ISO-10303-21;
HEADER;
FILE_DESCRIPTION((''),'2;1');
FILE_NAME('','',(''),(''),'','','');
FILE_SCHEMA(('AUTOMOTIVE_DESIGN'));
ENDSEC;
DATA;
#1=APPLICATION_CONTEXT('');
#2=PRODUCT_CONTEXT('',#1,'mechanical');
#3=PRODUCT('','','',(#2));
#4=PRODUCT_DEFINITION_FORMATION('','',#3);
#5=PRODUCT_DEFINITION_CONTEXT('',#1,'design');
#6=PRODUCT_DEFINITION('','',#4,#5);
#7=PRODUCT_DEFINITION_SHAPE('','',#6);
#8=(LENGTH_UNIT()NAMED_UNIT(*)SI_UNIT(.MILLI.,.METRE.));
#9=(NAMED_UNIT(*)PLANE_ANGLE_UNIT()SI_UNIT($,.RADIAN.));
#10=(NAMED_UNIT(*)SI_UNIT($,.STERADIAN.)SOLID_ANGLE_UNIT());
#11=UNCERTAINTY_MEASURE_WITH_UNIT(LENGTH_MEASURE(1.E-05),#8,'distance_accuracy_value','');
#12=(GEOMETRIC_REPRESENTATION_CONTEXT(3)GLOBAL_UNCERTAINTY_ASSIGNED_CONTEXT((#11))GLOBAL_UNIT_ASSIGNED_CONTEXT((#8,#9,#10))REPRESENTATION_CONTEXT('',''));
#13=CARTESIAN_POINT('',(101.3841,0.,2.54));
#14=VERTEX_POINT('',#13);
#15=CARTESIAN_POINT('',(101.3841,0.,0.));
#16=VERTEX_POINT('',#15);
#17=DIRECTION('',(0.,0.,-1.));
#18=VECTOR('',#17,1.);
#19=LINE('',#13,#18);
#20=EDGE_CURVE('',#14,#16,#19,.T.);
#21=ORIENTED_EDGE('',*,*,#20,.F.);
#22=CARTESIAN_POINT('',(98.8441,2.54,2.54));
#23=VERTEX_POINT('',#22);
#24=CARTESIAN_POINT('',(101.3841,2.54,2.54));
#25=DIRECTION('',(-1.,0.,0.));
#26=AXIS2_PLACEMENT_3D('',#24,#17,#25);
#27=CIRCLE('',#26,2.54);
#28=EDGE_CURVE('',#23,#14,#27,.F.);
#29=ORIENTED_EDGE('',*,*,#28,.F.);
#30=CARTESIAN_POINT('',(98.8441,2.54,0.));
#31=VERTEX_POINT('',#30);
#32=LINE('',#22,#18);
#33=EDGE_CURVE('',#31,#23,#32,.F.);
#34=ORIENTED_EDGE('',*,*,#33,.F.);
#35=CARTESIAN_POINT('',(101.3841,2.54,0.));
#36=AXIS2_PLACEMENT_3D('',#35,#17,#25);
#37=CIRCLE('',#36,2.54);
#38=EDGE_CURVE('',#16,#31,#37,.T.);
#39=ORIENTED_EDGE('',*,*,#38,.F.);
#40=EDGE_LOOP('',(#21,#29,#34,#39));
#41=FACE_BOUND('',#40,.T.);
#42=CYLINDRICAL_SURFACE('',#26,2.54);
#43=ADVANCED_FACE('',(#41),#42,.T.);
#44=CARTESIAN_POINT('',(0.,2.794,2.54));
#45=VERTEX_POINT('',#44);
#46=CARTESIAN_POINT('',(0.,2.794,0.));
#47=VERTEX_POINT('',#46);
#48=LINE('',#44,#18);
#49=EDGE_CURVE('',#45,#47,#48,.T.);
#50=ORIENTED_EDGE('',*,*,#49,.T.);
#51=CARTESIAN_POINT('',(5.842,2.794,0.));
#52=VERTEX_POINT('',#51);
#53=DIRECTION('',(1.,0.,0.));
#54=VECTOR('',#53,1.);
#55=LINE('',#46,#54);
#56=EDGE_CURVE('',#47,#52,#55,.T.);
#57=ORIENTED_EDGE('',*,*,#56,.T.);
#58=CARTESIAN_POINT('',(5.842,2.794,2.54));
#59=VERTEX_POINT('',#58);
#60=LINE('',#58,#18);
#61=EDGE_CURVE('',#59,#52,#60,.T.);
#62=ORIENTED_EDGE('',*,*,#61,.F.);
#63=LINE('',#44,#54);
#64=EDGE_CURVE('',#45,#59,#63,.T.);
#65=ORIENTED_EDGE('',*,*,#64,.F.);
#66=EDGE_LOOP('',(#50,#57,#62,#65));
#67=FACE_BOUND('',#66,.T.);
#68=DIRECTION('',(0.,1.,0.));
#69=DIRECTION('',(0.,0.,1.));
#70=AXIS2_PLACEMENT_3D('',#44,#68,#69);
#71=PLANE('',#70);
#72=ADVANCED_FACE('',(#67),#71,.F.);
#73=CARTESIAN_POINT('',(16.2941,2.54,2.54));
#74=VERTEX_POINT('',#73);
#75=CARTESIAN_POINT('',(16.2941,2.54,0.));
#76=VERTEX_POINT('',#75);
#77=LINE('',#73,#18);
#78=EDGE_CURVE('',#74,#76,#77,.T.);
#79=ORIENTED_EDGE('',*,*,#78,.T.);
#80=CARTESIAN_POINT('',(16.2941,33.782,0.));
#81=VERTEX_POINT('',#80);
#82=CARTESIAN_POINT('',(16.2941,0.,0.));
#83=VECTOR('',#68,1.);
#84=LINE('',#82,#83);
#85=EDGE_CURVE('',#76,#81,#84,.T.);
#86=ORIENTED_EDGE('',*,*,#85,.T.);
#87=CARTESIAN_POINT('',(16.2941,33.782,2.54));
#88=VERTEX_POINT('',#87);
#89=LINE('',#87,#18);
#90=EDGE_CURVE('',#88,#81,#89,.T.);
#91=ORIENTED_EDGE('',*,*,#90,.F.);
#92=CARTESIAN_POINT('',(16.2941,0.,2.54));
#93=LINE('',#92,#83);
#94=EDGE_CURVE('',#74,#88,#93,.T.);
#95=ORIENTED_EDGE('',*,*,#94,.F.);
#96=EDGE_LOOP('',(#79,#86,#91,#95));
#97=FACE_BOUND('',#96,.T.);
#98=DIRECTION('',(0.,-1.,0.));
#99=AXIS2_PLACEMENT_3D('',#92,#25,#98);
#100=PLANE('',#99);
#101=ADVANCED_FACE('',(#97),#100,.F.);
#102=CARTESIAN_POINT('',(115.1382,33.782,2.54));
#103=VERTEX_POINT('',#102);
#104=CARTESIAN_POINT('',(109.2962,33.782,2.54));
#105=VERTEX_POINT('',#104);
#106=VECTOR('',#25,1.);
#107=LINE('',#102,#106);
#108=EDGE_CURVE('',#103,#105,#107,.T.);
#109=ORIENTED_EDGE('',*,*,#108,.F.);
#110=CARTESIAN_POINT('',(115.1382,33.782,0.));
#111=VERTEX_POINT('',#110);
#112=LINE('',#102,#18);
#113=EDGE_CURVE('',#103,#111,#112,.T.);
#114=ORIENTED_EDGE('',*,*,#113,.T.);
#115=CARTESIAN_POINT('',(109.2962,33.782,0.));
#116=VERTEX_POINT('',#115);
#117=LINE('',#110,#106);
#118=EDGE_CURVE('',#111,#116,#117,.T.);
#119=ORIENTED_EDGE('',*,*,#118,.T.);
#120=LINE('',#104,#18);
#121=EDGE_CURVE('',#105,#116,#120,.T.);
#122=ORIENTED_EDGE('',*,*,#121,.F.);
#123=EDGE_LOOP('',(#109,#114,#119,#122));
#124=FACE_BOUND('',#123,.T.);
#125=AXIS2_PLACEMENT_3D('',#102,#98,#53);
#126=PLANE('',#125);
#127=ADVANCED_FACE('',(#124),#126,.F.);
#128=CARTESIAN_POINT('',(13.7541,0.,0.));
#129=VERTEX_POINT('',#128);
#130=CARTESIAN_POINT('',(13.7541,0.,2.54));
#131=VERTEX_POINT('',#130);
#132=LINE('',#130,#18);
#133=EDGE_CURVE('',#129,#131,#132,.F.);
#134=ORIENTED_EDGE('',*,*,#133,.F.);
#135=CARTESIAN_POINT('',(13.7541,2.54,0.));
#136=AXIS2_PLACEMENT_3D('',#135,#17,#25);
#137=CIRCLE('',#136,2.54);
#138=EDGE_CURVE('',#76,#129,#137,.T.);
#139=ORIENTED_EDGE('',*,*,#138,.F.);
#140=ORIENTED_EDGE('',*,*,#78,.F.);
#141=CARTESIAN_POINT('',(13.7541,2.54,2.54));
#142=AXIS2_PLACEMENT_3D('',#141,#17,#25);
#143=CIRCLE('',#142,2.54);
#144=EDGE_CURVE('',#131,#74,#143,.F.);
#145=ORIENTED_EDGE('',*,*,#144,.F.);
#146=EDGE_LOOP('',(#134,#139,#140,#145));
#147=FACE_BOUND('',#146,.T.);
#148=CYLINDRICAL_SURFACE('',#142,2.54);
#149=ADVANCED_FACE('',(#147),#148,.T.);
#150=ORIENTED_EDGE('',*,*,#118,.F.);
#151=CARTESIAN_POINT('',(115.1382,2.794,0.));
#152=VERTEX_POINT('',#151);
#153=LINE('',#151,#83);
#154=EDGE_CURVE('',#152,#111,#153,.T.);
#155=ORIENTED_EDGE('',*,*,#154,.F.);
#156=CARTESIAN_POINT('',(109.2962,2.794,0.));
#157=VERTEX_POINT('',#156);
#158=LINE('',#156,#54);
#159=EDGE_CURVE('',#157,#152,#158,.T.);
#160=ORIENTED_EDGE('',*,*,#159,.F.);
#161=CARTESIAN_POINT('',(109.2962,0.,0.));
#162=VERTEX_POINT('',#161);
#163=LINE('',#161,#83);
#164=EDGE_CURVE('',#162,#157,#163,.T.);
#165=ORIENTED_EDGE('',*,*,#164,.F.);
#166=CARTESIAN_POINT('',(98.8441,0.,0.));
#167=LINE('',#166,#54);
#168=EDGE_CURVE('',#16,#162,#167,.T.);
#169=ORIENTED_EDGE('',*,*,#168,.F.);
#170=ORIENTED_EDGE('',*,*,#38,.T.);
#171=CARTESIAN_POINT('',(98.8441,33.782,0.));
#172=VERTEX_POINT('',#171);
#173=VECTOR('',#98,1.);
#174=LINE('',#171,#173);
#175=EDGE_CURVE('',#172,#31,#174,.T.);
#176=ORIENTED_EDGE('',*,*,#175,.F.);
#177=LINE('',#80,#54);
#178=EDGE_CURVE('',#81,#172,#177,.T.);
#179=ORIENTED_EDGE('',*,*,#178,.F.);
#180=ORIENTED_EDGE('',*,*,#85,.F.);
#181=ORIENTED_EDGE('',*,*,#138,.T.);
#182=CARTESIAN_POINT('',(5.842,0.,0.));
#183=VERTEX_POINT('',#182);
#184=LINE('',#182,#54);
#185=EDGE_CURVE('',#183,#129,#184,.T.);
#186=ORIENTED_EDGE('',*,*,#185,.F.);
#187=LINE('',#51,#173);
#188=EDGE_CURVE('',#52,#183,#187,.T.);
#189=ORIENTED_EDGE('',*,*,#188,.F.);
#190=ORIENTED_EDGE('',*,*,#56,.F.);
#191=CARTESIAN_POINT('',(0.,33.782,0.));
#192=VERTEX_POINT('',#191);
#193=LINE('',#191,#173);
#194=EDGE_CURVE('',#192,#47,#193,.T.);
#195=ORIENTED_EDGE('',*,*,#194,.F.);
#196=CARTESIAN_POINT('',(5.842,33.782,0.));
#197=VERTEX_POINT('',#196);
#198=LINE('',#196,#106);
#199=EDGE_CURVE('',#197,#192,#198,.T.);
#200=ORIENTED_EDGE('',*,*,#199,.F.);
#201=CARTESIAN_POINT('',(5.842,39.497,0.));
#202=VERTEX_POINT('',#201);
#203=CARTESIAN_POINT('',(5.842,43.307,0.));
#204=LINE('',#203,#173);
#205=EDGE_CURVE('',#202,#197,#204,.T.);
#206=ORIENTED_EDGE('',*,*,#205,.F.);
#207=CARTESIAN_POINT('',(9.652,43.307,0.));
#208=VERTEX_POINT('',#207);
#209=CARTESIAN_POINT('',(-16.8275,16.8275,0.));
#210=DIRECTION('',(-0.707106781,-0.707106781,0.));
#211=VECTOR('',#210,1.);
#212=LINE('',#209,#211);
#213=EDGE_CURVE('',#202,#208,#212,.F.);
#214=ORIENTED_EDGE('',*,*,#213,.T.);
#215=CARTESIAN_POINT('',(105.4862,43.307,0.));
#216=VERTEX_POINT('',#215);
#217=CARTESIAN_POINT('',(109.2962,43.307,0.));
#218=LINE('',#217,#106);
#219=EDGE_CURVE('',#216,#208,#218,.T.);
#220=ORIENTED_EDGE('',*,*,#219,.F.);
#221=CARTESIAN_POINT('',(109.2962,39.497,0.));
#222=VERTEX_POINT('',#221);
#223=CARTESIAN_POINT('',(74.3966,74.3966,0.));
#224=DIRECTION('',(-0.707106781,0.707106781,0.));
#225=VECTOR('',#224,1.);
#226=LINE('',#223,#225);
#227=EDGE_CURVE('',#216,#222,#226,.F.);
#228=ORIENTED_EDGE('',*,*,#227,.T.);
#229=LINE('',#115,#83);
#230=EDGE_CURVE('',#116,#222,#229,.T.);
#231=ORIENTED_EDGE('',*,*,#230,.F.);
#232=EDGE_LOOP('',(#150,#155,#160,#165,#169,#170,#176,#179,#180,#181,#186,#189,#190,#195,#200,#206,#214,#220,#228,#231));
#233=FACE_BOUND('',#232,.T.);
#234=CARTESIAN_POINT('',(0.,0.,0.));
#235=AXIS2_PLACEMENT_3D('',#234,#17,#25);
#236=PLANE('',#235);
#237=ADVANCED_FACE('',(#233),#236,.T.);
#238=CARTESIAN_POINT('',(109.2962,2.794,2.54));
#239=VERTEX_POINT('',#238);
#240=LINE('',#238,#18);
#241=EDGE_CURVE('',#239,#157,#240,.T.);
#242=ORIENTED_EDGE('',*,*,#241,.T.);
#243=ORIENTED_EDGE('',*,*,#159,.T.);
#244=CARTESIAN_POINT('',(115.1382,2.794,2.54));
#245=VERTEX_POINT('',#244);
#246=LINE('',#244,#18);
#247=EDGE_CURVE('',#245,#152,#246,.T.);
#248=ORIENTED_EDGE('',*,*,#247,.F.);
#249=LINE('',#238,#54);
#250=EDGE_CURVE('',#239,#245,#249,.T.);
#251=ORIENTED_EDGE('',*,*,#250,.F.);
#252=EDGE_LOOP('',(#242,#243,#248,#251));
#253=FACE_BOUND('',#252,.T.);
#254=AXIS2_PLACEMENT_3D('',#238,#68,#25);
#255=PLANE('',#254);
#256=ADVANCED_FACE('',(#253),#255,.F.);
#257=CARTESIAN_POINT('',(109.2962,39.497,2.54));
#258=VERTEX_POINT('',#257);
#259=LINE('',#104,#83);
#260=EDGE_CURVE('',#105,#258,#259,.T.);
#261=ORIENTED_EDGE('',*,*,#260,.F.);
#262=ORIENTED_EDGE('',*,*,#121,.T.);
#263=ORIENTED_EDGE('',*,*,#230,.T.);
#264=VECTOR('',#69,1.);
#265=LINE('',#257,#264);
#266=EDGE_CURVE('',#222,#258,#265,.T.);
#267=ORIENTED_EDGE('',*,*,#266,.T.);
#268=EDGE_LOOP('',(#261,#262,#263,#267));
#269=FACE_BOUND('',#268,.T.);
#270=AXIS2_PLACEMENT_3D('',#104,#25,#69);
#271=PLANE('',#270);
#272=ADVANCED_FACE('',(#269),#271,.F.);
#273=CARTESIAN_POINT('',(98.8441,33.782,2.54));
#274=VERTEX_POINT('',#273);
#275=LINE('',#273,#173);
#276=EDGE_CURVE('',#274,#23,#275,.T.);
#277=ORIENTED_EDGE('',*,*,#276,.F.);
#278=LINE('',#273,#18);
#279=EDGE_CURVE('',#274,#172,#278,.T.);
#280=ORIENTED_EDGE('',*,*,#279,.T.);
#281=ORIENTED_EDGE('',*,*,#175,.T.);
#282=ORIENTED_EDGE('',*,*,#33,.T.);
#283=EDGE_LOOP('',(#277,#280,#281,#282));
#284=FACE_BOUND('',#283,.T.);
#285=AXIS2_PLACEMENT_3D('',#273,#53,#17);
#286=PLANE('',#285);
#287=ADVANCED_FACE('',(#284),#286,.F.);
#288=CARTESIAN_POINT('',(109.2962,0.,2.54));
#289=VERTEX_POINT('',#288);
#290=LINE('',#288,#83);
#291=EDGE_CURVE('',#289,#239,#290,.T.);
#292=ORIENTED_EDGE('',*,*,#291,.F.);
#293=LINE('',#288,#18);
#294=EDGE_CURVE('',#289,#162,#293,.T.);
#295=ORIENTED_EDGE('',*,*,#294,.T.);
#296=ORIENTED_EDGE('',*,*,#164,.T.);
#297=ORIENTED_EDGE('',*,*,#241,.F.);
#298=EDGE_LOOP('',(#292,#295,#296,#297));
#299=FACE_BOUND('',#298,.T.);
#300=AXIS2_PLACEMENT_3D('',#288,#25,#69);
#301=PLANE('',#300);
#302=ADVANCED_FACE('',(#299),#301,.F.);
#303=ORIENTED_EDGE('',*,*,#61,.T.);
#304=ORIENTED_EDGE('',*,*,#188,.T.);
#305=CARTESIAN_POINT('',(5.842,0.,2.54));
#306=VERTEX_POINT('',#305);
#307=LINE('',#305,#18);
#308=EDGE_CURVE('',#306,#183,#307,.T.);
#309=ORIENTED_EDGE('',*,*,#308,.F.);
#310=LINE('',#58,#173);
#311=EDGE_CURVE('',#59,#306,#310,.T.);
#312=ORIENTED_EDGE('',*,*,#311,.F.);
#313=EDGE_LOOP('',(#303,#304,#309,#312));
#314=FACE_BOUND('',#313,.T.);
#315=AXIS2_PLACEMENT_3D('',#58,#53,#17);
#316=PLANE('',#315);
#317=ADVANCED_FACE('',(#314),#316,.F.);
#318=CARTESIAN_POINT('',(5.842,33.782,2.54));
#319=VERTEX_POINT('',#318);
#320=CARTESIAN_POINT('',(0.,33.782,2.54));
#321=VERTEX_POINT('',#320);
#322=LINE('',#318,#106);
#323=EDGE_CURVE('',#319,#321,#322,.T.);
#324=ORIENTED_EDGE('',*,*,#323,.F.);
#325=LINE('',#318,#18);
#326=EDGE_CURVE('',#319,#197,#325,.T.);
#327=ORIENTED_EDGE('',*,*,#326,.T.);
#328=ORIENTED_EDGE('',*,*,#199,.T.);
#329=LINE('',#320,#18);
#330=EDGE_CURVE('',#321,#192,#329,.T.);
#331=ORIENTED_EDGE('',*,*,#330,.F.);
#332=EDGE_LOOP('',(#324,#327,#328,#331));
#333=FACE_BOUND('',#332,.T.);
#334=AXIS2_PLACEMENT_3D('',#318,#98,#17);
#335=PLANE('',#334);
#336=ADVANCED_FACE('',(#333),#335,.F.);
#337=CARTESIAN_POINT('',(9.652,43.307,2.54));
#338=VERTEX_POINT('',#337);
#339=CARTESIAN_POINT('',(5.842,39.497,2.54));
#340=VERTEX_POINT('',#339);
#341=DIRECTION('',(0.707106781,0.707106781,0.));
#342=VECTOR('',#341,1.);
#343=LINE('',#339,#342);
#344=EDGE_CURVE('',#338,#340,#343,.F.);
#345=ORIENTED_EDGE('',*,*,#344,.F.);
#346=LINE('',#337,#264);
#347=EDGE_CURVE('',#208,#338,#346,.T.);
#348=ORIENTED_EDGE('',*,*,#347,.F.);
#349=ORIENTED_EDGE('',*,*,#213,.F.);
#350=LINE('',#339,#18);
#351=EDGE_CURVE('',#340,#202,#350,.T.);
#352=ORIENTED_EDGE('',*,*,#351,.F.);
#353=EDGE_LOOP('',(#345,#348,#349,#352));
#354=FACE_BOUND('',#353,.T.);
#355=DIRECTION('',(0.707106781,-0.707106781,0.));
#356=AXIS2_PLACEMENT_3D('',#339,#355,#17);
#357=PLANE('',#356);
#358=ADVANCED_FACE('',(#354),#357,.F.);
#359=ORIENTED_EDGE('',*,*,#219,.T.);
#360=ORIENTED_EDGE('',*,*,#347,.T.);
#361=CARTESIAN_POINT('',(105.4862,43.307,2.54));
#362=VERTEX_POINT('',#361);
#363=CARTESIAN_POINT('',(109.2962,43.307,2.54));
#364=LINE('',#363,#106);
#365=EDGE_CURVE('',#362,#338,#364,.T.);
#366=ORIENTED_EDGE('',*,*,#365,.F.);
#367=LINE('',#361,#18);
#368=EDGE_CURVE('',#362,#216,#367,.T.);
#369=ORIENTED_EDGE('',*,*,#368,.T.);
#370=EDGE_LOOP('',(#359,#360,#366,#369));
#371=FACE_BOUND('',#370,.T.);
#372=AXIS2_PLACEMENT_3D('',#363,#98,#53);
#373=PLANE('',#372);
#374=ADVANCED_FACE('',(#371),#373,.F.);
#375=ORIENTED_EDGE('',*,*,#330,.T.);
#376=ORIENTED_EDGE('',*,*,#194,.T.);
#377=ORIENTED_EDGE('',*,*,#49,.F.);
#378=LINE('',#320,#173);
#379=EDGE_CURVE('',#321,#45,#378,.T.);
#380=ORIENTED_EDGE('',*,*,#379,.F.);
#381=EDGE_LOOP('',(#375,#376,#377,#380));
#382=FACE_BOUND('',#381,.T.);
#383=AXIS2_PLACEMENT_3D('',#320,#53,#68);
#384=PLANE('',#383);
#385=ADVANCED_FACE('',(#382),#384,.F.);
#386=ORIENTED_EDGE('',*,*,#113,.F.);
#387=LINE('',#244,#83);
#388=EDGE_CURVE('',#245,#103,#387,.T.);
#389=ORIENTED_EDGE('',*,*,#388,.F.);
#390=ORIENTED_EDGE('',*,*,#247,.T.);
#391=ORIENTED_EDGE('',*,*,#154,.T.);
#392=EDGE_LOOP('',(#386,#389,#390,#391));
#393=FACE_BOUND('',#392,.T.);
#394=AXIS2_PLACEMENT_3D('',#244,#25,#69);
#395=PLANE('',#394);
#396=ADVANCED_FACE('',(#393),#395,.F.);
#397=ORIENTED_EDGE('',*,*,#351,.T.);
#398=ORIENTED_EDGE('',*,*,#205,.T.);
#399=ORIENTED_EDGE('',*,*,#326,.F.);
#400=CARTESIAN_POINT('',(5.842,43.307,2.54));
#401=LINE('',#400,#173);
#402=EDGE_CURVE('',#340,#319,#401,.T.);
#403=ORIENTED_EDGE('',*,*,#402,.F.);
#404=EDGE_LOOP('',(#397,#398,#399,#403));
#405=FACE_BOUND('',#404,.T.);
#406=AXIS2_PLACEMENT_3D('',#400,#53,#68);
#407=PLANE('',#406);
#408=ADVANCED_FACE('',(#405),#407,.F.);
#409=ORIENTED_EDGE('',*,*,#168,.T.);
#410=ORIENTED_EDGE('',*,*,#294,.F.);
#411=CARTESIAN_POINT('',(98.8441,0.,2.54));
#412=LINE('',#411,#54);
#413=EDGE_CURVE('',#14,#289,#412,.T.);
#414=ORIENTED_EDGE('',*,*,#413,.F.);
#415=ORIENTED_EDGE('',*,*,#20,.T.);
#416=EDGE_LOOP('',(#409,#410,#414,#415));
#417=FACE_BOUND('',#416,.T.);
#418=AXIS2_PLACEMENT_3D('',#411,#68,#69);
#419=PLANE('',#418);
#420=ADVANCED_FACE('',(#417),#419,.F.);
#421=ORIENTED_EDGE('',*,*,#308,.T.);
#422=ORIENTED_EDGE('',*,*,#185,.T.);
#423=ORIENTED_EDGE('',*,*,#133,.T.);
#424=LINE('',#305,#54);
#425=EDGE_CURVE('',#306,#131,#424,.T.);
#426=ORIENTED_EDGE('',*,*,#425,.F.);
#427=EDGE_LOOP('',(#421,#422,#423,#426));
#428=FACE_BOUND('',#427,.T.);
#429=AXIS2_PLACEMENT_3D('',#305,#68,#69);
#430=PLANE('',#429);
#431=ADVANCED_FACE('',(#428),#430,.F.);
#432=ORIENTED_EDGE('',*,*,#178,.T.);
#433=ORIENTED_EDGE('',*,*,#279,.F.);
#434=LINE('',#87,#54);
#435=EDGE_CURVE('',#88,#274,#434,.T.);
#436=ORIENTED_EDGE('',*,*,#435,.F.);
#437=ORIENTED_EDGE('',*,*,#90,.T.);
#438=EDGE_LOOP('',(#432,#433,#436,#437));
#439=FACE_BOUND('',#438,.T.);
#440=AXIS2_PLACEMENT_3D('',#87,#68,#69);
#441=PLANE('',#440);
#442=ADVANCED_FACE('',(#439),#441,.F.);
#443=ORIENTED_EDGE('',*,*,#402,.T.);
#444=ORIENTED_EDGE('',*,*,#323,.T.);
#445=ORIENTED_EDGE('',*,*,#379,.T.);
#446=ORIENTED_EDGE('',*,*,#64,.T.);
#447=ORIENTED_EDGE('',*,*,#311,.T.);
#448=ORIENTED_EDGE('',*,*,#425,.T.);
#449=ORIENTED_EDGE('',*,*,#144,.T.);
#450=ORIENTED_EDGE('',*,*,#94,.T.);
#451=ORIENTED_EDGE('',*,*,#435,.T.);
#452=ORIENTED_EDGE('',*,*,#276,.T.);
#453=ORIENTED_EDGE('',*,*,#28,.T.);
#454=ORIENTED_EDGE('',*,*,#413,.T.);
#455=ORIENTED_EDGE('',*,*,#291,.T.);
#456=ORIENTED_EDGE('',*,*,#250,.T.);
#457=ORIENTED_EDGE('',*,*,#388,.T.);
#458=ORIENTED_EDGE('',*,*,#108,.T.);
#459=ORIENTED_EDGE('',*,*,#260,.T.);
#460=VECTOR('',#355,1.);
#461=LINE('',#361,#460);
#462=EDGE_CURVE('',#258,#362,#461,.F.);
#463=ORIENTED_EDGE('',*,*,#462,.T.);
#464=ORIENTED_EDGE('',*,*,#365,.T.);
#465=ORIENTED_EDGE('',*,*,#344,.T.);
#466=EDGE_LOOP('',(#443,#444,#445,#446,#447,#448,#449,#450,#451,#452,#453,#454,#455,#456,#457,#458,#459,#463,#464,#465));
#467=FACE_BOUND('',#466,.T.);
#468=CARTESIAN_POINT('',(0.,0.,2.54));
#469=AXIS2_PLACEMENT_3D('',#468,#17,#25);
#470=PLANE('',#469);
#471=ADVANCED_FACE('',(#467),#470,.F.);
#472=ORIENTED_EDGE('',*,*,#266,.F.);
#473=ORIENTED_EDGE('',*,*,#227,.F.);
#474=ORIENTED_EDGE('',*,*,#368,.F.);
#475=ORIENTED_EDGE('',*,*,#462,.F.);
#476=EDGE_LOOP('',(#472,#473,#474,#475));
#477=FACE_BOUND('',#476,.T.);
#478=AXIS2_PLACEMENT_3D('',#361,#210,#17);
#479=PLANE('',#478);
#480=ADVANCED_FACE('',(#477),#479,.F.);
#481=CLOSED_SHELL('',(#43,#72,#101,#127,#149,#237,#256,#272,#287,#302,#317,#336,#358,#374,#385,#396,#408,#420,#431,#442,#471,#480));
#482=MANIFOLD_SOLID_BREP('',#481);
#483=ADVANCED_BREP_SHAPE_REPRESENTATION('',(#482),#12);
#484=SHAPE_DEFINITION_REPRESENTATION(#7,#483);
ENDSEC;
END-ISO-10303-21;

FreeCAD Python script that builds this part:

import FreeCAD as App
import Part
import Sketcher

V = App.Vector
Q = App.Units.Quantity


def edges_at(feature, points):
    """Names of the edges that pass closest to the given points."""
    edges = feature.Shape.Edges
    near = lambda p: min(range(len(edges)), key=lambda i: edges[i].distToShape(Part.Vertex(*p))[0])
    return sorted({f"Edge{near(p) + 1}" for p in points})


def add_polygon(sketch, points):
    """Adds a closed chain of lines whose ends are joined by coincident constraints."""
    first, n = sketch.GeometryCount, len(points)
    for a, b in zip(points, points[1:] + points[:1]):
        sketch.addGeometry(Part.LineSegment(App.Vector(*a, 0), App.Vector(*b, 0)), False)
    for i in range(n):
        sketch.addConstraint(Sketcher.Constraint("Coincident", first + i, 2, first + (i + 1) % n, 1))

doc = App.newDocument("Part")
body = doc.addObject("PartDesign::Body", "Body")

sketch1 = doc.addObject("Sketcher::SketchObject", "Sketch")
body.addObject(sketch1)
sketch1.AttachmentSupport = (doc.XY_Plane, [""])
sketch1.MapMode = "FlatFace"
add_polygon(sketch1, [(5.8, 0), (16.3, 0), (16.3, 33.8), (98.8, 33.8), (98.8, 0), (109.3, 0), (109.3, 2.8), (115.1, 2.8), (115.1, 33.8), (109.3, 33.8), (109.3, 43.3), (5.8, 43.3), (5.8, 33.8), (0, 33.8), (0, 2.8), (5.8, 2.8)])
sketch1.addConstraint([
    Sketcher.Constraint("Horizontal", 0),
    Sketcher.Constraint("Vertical", 1),
    Sketcher.Constraint("Horizontal", 2),
    Sketcher.Constraint("Vertical", 3),
    Sketcher.Constraint("Horizontal", 4),
    Sketcher.Constraint("Vertical", 5),
    Sketcher.Constraint("Horizontal", 6),
    Sketcher.Constraint("Vertical", 7),
    Sketcher.Constraint("Horizontal", 8),
    Sketcher.Constraint("Vertical", 9),
    Sketcher.Constraint("Horizontal", 10),
    Sketcher.Constraint("Vertical", 11),
    Sketcher.Constraint("Horizontal", 12),
    Sketcher.Constraint("Vertical", 13),
    Sketcher.Constraint("Horizontal", 14),
    Sketcher.Constraint("Vertical", 15),
    Sketcher.Constraint("PointOnObject", 0, 2, -1),
    Sketcher.Constraint("PointOnObject", 3, 2, -1),
    Sketcher.Constraint("PointOnObject", 12, 2, -2),
    Sketcher.Constraint("Horizontal", 2, 2, 7, 2),
    Sketcher.Constraint("Horizontal", 8, 2, 11, 2),
    Sketcher.Constraint("Horizontal", 6, 2, 13, 2),
    Sketcher.Constraint("Vertical", 5, 2, 8, 2),
    Sketcher.Constraint("Vertical", 11, 2, 14, 2),
    Sketcher.Constraint("Equal", 0, 4),
    Sketcher.Constraint("Equal", 8, 12),
    Sketcher.Constraint("DistanceX", 2, 1, 2, 2, Q("3.25 in")),
    Sketcher.Constraint("DistanceX", 6, 1, 6, 2, Q("0.23 in")),
    Sketcher.Constraint("DistanceY", 1, 1, 1, 2, Q("1.33 in")),
    Sketcher.Constraint("DistanceY", 5, 1, 5, 2, Q("0.11 in")),
    Sketcher.Constraint("DistanceX", 10, 2, 10, 1, Q("4.073 in")),
    Sketcher.Constraint("DistanceY", 9, 1, 9, 2, Q("0.375 in")),
])
pad1 = doc.addObject("PartDesign::Pad", "Pad")
body.addObject(pad1)
pad1.Profile = sketch1
pad1.Length = Q("0.1 in")
doc.recompute()

chamfer = doc.addObject("PartDesign::Chamfer", "Chamfer")
body.addObject(chamfer)
chamfer.Base = (pad1, edges_at(pad1, [(5.842, 43.307, 1.27), (109.296, 43.307, 1.27)]))
chamfer.Size = Q("0.15 in")
doc.recompute()

fillet = doc.addObject("PartDesign::Fillet", "Fillet")
body.addObject(fillet)
fillet.Base = (chamfer, edges_at(chamfer, [(16.294, 0, 1.27), (98.844, 0, 1.27)]))
fillet.Radius = Q("0.1 in")

doc.recompute()
